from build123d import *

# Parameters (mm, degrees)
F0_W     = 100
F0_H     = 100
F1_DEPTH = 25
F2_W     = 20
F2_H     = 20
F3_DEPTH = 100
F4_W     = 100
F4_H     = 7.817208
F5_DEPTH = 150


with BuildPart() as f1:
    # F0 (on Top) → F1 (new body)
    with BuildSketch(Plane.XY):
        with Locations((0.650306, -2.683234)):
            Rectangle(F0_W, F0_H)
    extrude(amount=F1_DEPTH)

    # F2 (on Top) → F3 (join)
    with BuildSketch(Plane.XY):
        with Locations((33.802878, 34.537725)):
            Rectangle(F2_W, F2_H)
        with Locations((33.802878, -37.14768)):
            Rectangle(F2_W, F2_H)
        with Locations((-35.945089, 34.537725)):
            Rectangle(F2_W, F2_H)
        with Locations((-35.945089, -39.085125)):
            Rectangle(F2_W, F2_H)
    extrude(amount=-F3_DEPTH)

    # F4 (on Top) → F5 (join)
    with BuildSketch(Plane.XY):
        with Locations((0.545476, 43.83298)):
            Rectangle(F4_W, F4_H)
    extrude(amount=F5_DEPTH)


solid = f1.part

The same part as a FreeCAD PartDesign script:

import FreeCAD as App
import Part
import Sketcher
from FreeCAD import Vector
Q = App.Units.Quantity


def add_polygon(sketch, points):
    """Adds a closed chain of lines whose ends are joined by coincident constraints."""
    first, n = sketch.GeometryCount, len(points)
    for a, b in zip(points, points[1:] + points[:1]):
        sketch.addGeometry(Part.LineSegment(App.Vector(*a, 0), App.Vector(*b, 0)), False)
    for i in range(n):
        sketch.addConstraint(Sketcher.Constraint("Coincident", first + i, 2, first + (i + 1) % n, 1))

doc = App.newDocument("Part")
body = doc.addObject("PartDesign::Body", "Body")

# Sketch on XY plane
sketch1 = body.newObject("Sketcher::SketchObject", "Sketch")
sketch1.AttachmentSupport = (doc.getObject("XY_Plane"), [""])
sketch1.MapMode = "FlatFace"
add_polygon(sketch1, [(-49.349694, 47.316766), (-49.349694, -52.683234), (50.650306, -52.683234), (50.650306, 47.316766)])  # lines 0-3
sketch1.addConstraint([
    Sketcher.Constraint("Vertical", 0),
    Sketcher.Constraint("Horizontal", 1),
    Sketcher.Constraint("Vertical", 2),
    Sketcher.Constraint("Horizontal", 3),
    Sketcher.Constraint("Equal", 3, 0),
    Sketcher.Constraint("DistanceX", 1, 1, 1, 2, Q("100 mm")),
    Sketcher.Constraint("DistanceX", 0, 2, -1, 1, Q("49.349694 mm")),
    Sketcher.Constraint("DistanceY", 0, 2, -1, 1, Q("52.683234 mm")),
])
pad1 = body.newObject("PartDesign::Pad", "Pad")
pad1.Profile = sketch1
pad1.Length = 25

# Sketch on XY plane
sketch2 = body.newObject("Sketcher::SketchObject", "Sketch001")
sketch2.AttachmentSupport = (doc.getObject("XY_Plane"), [""])
sketch2.MapMode = "FlatFace"
add_polygon(sketch2, [(23.802878, 44.537725), (23.802878, 24.537725), (43.802878, 24.537725), (43.802878, 44.537725)])  # lines 0-3
add_polygon(sketch2, [(23.802878, -27.14768), (23.802878, -47.14768), (43.802878, -47.14768), (43.802878, -27.14768)])  # lines 4-7
add_polygon(sketch2, [(-45.945089, 44.537725), (-45.945089, 24.537725), (-25.945089, 24.537725), (-25.945089, 44.537725)])  # lines 8-11
add_polygon(sketch2, [(-45.945089, -29.085125), (-45.945089, -49.085125), (-25.945089, -49.085125), (-25.945089, -29.085125)])  # lines 12-15
sketch2.addConstraint([
    Sketcher.Constraint("Vertical", 0),
    Sketcher.Constraint("Horizontal", 1),
    Sketcher.Constraint("Vertical", 2),
    Sketcher.Constraint("Horizontal", 3),
    Sketcher.Constraint("Vertical", 4),
    Sketcher.Constraint("Horizontal", 5),
    Sketcher.Constraint("Vertical", 6),
    Sketcher.Constraint("Horizontal", 7),
    Sketcher.Constraint("Vertical", 8),
    Sketcher.Constraint("Horizontal", 9),
    Sketcher.Constraint("Vertical", 10),
    Sketcher.Constraint("Horizontal", 11),
    Sketcher.Constraint("Vertical", 12),
    Sketcher.Constraint("Horizontal", 13),
    Sketcher.Constraint("Vertical", 14),
    Sketcher.Constraint("Horizontal", 15),
    Sketcher.Constraint("Horizontal", 1, 2, 8, 2),
    Sketcher.Constraint("Horizontal", 3, 2, 10, 2),
    Sketcher.Constraint("Vertical", 3, 2, 4, 2),
    Sketcher.Constraint("Vertical", 2, 2, 5, 2),
    Sketcher.Constraint("Vertical", 11, 2, 12, 2),
    Sketcher.Constraint("Vertical", 10, 2, 13, 2),
    Sketcher.Constraint("Equal", 7, 9),
    Sketcher.Constraint("Equal", 15, 0),
    Sketcher.Constraint("Equal", 2, 4),
    Sketcher.Constraint("Equal", 10, 12),
    Sketcher.Constraint("DistanceX", 1, 1, 1, 2, Q("20 mm")),
    Sketcher.Constraint("DistanceX", -1, 1, 0, 2, Q("23.802878 mm")),
    Sketcher.Constraint("DistanceY", 4, 2, -1, 1, Q("47.14768 mm")),
    Sketcher.Constraint("DistanceX", 8, 2, -1, 1, Q("45.945089 mm")),
    Sketcher.Constraint("DistanceY", 12, 2, 8, 2, Q("73.62285 mm")),
    Sketcher.Constraint("DistanceY", -1, 1, 0, 2, Q("24.537725 mm")),
])
pad2 = body.newObject("PartDesign::Pad", "Pad001")
pad2.Profile = sketch2
pad2.Length = 100
pad2.Reversed = True

# Sketch on XY plane
sketch3 = body.newObject("Sketcher::SketchObject", "Sketch002")
sketch3.AttachmentSupport = (doc.getObject("XY_Plane"), [""])
sketch3.MapMode = "FlatFace"
add_polygon(sketch3, [(-49.454524, 47.741584), (-49.454524, 39.924376), (50.545476, 39.924376), (50.545476, 47.741584)])  # lines 0-3
sketch3.addConstraint([
    Sketcher.Constraint("Vertical", 0),
    Sketcher.Constraint("Horizontal", 1),
    Sketcher.Constraint("Vertical", 2),
    Sketcher.Constraint("Horizontal", 3),
    Sketcher.Constraint("DistanceX", 1, 1, 1, 2, Q("100 mm")),
    Sketcher.Constraint("DistanceY", 0, 2, 0, 1, Q("7.817208 mm")),
    Sketcher.Constraint("DistanceX", 0, 2, -1, 1, Q("49.454524 mm")),
    Sketcher.Constraint("DistanceY", -1, 1, 0, 2, Q("39.924376 mm")),
])
pad3 = body.newObject("PartDesign::Pad", "Pad002")
pad3.Profile = sketch3
pad3.Length = 150

doc.recompute()
